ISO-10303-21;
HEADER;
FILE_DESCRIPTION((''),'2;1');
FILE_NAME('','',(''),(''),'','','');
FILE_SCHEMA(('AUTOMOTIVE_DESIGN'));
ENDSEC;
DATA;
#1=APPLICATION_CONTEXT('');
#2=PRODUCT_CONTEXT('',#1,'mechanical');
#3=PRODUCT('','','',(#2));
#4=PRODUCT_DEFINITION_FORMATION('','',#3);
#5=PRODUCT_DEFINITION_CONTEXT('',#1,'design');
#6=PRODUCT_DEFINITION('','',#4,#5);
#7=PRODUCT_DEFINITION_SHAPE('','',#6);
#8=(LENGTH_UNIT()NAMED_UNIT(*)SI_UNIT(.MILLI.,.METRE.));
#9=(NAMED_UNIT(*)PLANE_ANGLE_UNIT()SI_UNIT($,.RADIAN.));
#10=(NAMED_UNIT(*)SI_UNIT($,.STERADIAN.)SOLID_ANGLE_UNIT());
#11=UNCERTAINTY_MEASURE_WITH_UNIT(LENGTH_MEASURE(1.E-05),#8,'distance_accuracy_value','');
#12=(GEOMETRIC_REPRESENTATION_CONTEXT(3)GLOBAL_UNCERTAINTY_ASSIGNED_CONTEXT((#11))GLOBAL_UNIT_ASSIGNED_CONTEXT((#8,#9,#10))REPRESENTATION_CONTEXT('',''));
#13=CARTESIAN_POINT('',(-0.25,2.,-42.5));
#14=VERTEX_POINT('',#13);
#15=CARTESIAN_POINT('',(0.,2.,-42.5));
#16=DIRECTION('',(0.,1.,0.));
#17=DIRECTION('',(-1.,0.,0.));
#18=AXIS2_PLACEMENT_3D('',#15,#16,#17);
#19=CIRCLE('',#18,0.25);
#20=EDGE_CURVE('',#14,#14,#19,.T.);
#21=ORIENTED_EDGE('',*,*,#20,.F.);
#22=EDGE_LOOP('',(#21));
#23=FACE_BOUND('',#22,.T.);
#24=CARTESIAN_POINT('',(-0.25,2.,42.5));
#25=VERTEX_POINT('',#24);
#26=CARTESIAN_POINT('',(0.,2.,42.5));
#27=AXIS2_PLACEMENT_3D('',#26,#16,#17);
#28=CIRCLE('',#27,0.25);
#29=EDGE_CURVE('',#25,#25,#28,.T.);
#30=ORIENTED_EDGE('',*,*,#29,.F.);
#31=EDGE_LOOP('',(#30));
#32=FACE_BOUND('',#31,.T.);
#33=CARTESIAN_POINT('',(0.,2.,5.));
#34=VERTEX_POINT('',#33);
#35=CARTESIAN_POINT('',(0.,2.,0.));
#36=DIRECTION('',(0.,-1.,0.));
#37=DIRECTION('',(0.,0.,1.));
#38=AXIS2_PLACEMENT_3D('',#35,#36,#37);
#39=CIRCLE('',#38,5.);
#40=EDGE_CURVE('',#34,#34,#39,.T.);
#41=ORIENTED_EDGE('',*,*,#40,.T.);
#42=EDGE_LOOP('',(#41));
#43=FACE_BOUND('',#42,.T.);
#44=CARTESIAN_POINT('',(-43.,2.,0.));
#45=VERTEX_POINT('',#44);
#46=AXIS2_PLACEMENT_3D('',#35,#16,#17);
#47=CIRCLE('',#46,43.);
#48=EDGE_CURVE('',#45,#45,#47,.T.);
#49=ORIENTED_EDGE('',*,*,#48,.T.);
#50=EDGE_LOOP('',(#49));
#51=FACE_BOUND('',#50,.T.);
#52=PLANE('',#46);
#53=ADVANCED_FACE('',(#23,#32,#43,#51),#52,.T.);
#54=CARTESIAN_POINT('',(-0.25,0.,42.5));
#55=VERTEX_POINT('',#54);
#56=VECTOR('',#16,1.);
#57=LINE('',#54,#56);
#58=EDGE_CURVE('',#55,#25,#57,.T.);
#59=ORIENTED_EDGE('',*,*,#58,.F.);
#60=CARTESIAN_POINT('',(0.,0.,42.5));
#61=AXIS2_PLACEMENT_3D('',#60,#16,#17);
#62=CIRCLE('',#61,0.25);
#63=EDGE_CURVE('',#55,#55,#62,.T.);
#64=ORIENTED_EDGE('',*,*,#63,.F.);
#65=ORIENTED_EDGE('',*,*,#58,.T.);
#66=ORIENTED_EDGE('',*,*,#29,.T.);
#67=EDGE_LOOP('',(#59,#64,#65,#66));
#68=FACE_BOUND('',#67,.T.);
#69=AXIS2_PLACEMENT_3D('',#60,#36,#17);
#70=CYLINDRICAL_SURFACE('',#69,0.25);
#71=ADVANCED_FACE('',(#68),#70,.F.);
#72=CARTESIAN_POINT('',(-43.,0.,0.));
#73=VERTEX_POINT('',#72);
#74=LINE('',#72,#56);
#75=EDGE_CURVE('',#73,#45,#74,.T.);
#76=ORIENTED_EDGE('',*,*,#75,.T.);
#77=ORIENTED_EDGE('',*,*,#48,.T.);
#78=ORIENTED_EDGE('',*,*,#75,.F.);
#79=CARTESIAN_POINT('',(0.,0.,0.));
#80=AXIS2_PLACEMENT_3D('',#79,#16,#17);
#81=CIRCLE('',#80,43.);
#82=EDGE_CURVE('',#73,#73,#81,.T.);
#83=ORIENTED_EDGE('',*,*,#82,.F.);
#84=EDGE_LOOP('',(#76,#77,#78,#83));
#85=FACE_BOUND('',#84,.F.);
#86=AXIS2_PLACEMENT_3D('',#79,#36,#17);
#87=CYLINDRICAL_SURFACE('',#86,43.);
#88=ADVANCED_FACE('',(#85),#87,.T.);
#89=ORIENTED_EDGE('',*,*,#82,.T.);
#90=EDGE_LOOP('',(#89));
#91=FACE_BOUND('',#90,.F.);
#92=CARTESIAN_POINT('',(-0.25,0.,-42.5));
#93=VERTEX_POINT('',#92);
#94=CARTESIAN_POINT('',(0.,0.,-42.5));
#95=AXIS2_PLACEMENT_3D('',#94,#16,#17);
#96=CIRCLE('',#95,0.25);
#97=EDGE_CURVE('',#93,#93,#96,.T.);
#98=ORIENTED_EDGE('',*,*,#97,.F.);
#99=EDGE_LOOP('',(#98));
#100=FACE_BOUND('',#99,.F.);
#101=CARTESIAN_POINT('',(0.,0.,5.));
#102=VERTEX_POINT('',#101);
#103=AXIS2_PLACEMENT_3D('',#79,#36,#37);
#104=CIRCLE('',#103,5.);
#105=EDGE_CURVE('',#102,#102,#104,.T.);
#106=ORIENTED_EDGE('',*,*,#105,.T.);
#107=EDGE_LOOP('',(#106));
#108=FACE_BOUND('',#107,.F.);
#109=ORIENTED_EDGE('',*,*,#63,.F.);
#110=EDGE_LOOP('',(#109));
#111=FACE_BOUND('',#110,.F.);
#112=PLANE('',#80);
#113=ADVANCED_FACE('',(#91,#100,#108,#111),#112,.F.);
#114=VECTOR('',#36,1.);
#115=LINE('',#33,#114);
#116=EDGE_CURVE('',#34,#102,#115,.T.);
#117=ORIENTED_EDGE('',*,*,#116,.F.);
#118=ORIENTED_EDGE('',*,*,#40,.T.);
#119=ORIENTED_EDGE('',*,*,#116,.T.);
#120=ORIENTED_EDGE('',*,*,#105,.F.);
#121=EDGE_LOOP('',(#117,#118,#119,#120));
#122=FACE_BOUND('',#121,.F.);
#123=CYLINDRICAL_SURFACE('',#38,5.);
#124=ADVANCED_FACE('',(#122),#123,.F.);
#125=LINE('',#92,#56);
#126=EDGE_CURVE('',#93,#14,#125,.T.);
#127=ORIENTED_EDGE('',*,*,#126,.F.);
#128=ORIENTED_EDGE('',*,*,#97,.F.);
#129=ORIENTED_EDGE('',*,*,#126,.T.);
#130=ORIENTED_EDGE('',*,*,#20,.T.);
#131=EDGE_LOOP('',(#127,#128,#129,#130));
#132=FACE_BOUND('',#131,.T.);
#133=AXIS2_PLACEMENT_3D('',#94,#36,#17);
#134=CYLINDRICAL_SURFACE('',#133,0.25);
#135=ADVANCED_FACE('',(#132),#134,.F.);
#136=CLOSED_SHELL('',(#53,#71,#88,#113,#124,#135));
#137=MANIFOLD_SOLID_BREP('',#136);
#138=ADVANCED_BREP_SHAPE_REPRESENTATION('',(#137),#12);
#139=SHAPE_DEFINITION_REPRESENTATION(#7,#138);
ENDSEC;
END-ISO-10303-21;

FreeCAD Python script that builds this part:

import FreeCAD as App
import Part
import Sketcher
from FreeCAD import Vector

doc = App.newDocument("Part")
body = doc.addObject("PartDesign::Body", "Body")

# Sketch on XZ plane
sketch1 = body.newObject("Sketcher::SketchObject", "Sketch")
sketch1.AttachmentSupport = (doc.getObject("XZ_Plane"), [""])
sketch1.MapMode = "FlatFace"
sketch1.addGeometry(Part.Circle(Vector(0, 0, 0), Vector(0, 0, 1), 43), False)
sketch1.addGeometry(Part.Circle(Vector(0, -42.5, 0), Vector(0, 0, 1), 0.25), False)
sketch1.addGeometry(Part.Circle(Vector(0, 42.5, 0), Vector(0, 0, 1), 0.25), False)
sketch1.addConstraint(Sketcher.Constraint("Coincident", 0, 3, -1, 1))
sketch1.addConstraint(Sketcher.Constraint("Equal", 1, 2))
sketch1.addConstraint(Sketcher.Constraint("Symmetric", 1, 3, 2, 3, -1, 1))
sketch1.addConstraint(Sketcher.Constraint("PointOnObject", 1, 3, -2))
sketch1.addConstraint(Sketcher.Constraint("Diameter", 1, 0.5))
sketch1.addConstraint(Sketcher.Constraint("Diameter", 0, 86.0))
sketch1.addConstraint(Sketcher.Constraint("DistanceY", 1, 3, -1, 1, 42.5))
pad1 = body.newObject("PartDesign::Pad", "Pad")
pad1.Profile = sketch1
pad1.Length = 2
pad1.Reversed = True

# Sketch on XZ plane
sketch2 = body.newObject("Sketcher::SketchObject", "Sketch001")
sketch2.AttachmentSupport = (doc.getObject("XZ_Plane"), [""])
sketch2.MapMode = "FlatFace"
sketch2.AttachmentOffset = App.Placement(Vector(0, 0, -2), App.Rotation())
sketch2.addGeometry(Part.Circle(Vector(0, 0, 0), Vector(0, 0, 1), 5), False)
sketch2.addConstraint(Sketcher.Constraint("Coincident", 0, 3, -1, 1))
sketch2.addConstraint(Sketcher.Constraint("Diameter", 0, 10.0))
doc.recompute()
hole = body.newObject("PartDesign::Hole", "Hole")
hole.Profile = sketch2
hole.ThreadType = "None"
hole.Diameter = 10
hole.DepthType = "ThroughAll"
hole.Reversed = True

doc.recompute()
